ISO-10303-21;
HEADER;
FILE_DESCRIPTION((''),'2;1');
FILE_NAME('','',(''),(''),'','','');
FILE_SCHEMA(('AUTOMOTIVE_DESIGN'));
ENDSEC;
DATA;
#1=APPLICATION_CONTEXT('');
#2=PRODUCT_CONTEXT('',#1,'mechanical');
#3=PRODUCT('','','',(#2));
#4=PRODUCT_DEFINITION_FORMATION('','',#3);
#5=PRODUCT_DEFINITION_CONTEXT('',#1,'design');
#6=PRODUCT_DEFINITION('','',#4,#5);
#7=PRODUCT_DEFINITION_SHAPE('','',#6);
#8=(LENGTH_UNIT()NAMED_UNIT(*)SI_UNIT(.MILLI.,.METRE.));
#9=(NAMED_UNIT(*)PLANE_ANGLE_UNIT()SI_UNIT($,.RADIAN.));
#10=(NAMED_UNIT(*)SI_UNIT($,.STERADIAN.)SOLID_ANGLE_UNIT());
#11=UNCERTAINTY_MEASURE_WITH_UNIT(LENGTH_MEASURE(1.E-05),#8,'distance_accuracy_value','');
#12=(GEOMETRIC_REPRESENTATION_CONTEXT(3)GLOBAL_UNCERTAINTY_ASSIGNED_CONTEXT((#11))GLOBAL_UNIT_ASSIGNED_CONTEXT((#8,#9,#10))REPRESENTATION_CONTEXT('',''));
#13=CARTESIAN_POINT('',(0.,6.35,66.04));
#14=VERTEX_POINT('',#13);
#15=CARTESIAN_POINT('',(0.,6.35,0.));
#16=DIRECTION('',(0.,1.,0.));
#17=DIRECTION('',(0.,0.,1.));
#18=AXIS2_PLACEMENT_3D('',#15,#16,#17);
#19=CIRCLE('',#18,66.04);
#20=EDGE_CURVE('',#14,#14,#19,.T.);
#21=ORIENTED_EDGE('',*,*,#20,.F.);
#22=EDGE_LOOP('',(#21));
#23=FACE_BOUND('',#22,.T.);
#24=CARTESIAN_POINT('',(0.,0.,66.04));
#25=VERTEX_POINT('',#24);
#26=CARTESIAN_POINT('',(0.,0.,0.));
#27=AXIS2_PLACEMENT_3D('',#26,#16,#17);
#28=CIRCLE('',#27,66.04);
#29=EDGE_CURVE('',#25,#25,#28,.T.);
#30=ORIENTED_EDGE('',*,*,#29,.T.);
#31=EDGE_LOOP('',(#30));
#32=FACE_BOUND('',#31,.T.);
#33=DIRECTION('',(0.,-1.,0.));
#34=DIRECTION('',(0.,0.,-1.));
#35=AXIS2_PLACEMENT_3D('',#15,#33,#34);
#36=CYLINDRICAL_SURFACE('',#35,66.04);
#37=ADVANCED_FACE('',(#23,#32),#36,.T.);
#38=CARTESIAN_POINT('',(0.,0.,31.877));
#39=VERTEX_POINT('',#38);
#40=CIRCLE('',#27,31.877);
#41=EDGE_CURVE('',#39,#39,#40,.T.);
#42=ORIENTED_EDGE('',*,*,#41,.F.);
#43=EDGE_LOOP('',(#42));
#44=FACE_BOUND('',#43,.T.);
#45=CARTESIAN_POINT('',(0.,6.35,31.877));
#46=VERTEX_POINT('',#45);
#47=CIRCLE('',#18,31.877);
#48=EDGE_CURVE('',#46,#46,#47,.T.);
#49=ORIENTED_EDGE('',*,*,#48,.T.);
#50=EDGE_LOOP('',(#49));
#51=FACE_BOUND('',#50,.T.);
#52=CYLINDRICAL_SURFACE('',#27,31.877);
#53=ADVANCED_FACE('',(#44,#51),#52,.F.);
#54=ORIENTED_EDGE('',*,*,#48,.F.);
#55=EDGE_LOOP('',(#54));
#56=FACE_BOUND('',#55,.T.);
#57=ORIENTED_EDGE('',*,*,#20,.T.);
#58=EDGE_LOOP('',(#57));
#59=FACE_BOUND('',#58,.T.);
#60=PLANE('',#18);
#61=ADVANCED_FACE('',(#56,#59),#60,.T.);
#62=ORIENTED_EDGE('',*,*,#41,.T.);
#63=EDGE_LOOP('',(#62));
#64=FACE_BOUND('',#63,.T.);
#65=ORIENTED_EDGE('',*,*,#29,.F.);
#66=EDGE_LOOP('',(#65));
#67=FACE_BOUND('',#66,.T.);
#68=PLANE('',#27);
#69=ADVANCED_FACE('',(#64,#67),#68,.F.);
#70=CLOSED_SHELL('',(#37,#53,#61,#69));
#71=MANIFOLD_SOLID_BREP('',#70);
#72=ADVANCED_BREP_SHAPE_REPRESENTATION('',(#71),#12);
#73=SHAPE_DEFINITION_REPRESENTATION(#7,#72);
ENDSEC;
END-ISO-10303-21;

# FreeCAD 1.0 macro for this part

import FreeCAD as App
import Part
import Sketcher
Q = App.Units.Quantity

doc = App.newDocument("Part")
body = doc.addObject("PartDesign::Body", "Body")

sketch1 = body.newObject("Sketcher::SketchObject", "Sketch")
sketch1.AttachmentSupport = (doc.getObject("XZ_Plane"), [""])
sketch1.MapMode = "FlatFace"
sketch1.addGeometry(Part.Circle(App.Vector(0, 0, 0), App.Vector(0, 0, 1), 66.04), False)
sketch1.addConstraint(Sketcher.Constraint("Coincident", 0, 3, -1, 1))
sketch1.addConstraint(Sketcher.Constraint("Diameter", 0, Q("5.2 in")))
pad1 = body.newObject("PartDesign::Pad", "Pad")
pad1.Profile = sketch1
pad1.Length = Q("0.25 in")
pad1.Reversed = True

sketch2 = body.newObject("Sketcher::SketchObject", "Sketch001")
sketch2.AttachmentSupport = (doc.getObject("XZ_Plane"), [""])
sketch2.MapMode = "FlatFace"
sketch2.AttachmentOffset = App.Placement(App.Vector(0, 0, -0.25 * 25.4), App.Rotation())
sketch2.addGeometry(Part.Circle(App.Vector(0, 0, 0), App.Vector(0, 0, 1), 31.877), False)
sketch2.addConstraint(Sketcher.Constraint("Coincident", 0, 3, -1, 1))
sketch2.addConstraint(Sketcher.Constraint("Diameter", 0, Q("2.51 in")))
pocket1 = body.newObject("PartDesign::Pocket", "Pocket")
pocket1.Profile = sketch2
pocket1.Length = Q("0.25 in")
pocket1.Reversed = True

doc.recompute()
